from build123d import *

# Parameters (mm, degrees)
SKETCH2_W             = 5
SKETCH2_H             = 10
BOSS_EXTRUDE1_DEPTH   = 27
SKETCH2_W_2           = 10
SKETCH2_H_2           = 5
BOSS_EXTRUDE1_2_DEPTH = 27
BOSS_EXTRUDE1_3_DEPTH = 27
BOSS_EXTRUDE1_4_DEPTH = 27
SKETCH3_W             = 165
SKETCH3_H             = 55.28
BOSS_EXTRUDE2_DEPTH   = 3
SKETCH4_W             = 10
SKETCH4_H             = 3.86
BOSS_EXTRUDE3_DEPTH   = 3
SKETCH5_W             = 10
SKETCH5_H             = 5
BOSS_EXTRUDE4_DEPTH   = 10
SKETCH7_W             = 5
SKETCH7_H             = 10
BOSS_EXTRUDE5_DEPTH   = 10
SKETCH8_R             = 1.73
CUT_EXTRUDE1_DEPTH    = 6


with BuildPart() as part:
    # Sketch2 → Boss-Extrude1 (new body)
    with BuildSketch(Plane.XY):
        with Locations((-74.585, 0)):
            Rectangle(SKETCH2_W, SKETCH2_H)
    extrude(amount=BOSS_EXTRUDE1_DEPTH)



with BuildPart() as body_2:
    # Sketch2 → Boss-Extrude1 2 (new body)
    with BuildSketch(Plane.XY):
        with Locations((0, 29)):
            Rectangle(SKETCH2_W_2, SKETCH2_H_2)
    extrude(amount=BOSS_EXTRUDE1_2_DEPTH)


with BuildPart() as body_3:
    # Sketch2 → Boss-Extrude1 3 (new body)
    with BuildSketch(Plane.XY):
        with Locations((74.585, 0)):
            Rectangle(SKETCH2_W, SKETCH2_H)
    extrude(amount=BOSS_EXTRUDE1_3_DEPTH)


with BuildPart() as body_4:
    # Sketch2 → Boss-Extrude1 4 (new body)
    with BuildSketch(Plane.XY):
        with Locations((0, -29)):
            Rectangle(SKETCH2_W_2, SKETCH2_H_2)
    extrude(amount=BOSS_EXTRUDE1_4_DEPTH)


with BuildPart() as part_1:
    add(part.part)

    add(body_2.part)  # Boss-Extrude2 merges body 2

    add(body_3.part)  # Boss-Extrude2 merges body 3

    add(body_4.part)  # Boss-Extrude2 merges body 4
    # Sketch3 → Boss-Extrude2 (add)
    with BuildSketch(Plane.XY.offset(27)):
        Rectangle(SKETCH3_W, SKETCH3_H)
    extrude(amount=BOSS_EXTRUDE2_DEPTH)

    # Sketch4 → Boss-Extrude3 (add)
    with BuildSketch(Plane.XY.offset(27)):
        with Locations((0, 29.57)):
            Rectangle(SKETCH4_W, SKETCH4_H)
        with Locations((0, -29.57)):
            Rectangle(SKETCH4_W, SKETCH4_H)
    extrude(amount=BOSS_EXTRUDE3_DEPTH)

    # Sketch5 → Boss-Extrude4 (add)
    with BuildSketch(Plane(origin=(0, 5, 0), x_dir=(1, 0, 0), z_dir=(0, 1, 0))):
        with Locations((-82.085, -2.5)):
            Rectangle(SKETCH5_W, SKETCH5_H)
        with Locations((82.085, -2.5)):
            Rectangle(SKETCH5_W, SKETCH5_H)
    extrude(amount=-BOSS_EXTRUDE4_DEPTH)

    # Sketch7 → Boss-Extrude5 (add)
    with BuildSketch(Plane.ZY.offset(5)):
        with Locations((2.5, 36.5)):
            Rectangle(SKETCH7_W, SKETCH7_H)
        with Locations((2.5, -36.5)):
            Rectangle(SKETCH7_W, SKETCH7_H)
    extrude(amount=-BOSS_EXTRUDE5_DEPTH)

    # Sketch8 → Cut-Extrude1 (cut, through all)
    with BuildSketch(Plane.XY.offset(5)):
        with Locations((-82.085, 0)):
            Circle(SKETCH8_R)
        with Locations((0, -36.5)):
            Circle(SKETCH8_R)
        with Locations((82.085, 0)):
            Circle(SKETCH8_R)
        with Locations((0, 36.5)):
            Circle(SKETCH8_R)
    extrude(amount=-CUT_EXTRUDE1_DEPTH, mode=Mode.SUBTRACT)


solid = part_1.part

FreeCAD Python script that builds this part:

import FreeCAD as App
import Part
import Sketcher
from FreeCAD import Vector
Q = App.Units.Quantity


def add_polygon(sketch, points):
    """Adds a closed chain of lines whose ends are joined by coincident constraints."""
    first, n = sketch.GeometryCount, len(points)
    for a, b in zip(points, points[1:] + points[:1]):
        sketch.addGeometry(Part.LineSegment(App.Vector(*a, 0), App.Vector(*b, 0)), False)
    for i in range(n):
        sketch.addConstraint(Sketcher.Constraint("Coincident", first + i, 2, first + (i + 1) % n, 1))

doc = App.newDocument("Part")
params = doc.addObject("Spreadsheet::Sheet", "Params")
for row, (alias, value) in enumerate([
    ("sketch1_width", "5 mm"),
    ("sketch1_height", "10 mm"),
    ("pad1_length", "27 mm"),
    ("sketch2_width", "10 mm"),
    ("sketch2_height", "5 mm"),
    ("pad2_length", "27 mm"),
    ("sketch3_width", "5 mm"),
    ("sketch3_height", "10 mm"),
    ("pad3_length", "27 mm"),
    ("sketch4_width", "10 mm"),
    ("sketch4_height", "5 mm"),
    ("pad4_length", "27 mm"),
    ("sketch5_width", "165 mm"),
    ("sketch5_height", "55.28 mm"),
    ("pad5_length", "3 mm"),
    ("sketch6_width", "10 mm"),
    ("sketch6_height", "3.86 mm"),
    ("pad6_length", "3 mm"),
    ("sketch7_width", "10 mm"),
    ("sketch7_height", "5 mm"),
    ("pad7_length", "10 mm"),
    ("sketch8_width", "10 mm"),
    ("sketch8_height", "5 mm"),
    ("pad8_length", "10 mm"),
    ("sketch9_diameter", "3.46 mm"),
], start=1):
    params.set(f"A{row}", alias)
    params.set(f"B{row}", "=" + value)
    params.setAlias(f"B{row}", alias)

body = doc.addObject("PartDesign::Body", "Body")

# Sketch on XY plane
sketch1 = doc.addObject("Sketcher::SketchObject", "Sketch")
body.addObject(sketch1)
sketch1.AttachmentSupport = (doc.XY_Plane, [""])
sketch1.MapMode = "FlatFace"
add_polygon(sketch1, [(-77.085, 5), (-77.085, -5), (-72.085, -5), (-72.085, 5)])  # lines 0-3
sketch1.addConstraint([
    Sketcher.Constraint("Vertical", 0),
    Sketcher.Constraint("Horizontal", 1),
    Sketcher.Constraint("Vertical", 2),
    Sketcher.Constraint("Horizontal", 3),
    Sketcher.Constraint("DistanceX", 1, 1, 1, 2, Q("5 mm")),
    Sketcher.Constraint("DistanceY", 0, 2, 0, 1, Q("10 mm")),
    Sketcher.Constraint("DistanceY", 0, 2, -1, 1, Q("5 mm")),
    Sketcher.Constraint("DistanceX", 0, 2, -1, 1, Q("77.085 mm")),
])
sketch1.setExpression("Constraints[8]", "Params.sketch1_width")
sketch1.setExpression("Constraints[9]", "Params.sketch1_height")
pad1 = doc.addObject("PartDesign::Pad", "Pad")
body.addObject(pad1)
pad1.Profile = sketch1
pad1.setExpression("Length", "Params.pad1_length")
body2 = doc.addObject("PartDesign::Body", "Body001")

# Sketch on XY plane
sketch2 = doc.addObject("Sketcher::SketchObject", "Sketch001")
body2.addObject(sketch2)
sketch2.AttachmentSupport = (doc.getObject("XY_Plane001"), [""])
sketch2.MapMode = "FlatFace"
add_polygon(sketch2, [(-5, 31.5), (-5, 26.5), (5, 26.5), (5, 31.5)])  # lines 0-3
sketch2.addConstraint([
    Sketcher.Constraint("Vertical", 0),
    Sketcher.Constraint("Horizontal", 1),
    Sketcher.Constraint("Vertical", 2),
    Sketcher.Constraint("Horizontal", 3),
    Sketcher.Constraint("DistanceX", 1, 1, 1, 2, Q("10 mm")),
    Sketcher.Constraint("DistanceY", 0, 2, 0, 1, Q("5 mm")),
    Sketcher.Constraint("DistanceX", 0, 2, -1, 1, Q("5 mm")),
    Sketcher.Constraint("DistanceY", -1, 1, 0, 2, Q("26.5 mm")),
])
sketch2.setExpression("Constraints[8]", "Params.sketch2_width")
sketch2.setExpression("Constraints[9]", "Params.sketch2_height")
pad2 = doc.addObject("PartDesign::Pad", "Pad001")
body2.addObject(pad2)
pad2.Profile = sketch2
pad2.setExpression("Length", "Params.pad2_length")
body3 = doc.addObject("PartDesign::Body", "Body002")

# Sketch on XY plane
sketch3 = doc.addObject("Sketcher::SketchObject", "Sketch002")
body3.addObject(sketch3)
sketch3.AttachmentSupport = (doc.getObject("XY_Plane002"), [""])
sketch3.MapMode = "FlatFace"
add_polygon(sketch3, [(72.085, 5), (72.085, -5), (77.085, -5), (77.085, 5)])  # lines 0-3
sketch3.addConstraint([
    Sketcher.Constraint("Vertical", 0),
    Sketcher.Constraint("Horizontal", 1),
    Sketcher.Constraint("Vertical", 2),
    Sketcher.Constraint("Horizontal", 3),
    Sketcher.Constraint("DistanceX", 1, 1, 1, 2, Q("5 mm")),
    Sketcher.Constraint("DistanceY", 0, 2, 0, 1, Q("10 mm")),
    Sketcher.Constraint("DistanceY", 0, 2, -1, 1, Q("5 mm")),
    Sketcher.Constraint("DistanceX", -1, 1, 0, 2, Q("72.085 mm")),
])
sketch3.setExpression("Constraints[8]", "Params.sketch3_width")
sketch3.setExpression("Constraints[9]", "Params.sketch3_height")
pad3 = doc.addObject("PartDesign::Pad", "Pad002")
body3.addObject(pad3)
pad3.Profile = sketch3
pad3.setExpression("Length", "Params.pad3_length")
body4 = doc.addObject("PartDesign::Body", "Body003")

# Sketch on XY plane
sketch4 = doc.addObject("Sketcher::SketchObject", "Sketch003")
body4.addObject(sketch4)
sketch4.AttachmentSupport = (doc.getObject("XY_Plane003"), [""])
sketch4.MapMode = "FlatFace"
add_polygon(sketch4, [(-5, -26.5), (-5, -31.5), (5, -31.5), (5, -26.5)])  # lines 0-3
sketch4.addConstraint([
    Sketcher.Constraint("Vertical", 0),
    Sketcher.Constraint("Horizontal", 1),
    Sketcher.Constraint("Vertical", 2),
    Sketcher.Constraint("Horizontal", 3),
    Sketcher.Constraint("DistanceX", 1, 1, 1, 2, Q("10 mm")),
    Sketcher.Constraint("DistanceY", 0, 2, 0, 1, Q("5 mm")),
    Sketcher.Constraint("DistanceX", 0, 2, -1, 1, Q("5 mm")),
    Sketcher.Constraint("DistanceY", 0, 2, -1, 1, Q("31.5 mm")),
])
sketch4.setExpression("Constraints[8]", "Params.sketch4_width")
sketch4.setExpression("Constraints[9]", "Params.sketch4_height")
pad4 = doc.addObject("PartDesign::Pad", "Pad003")
body4.addObject(pad4)
pad4.Profile = sketch4
pad4.setExpression("Length", "Params.pad4_length")
body.AllowCompound = True
doc.recompute()

boolean = doc.addObject("PartDesign::Boolean", "Boolean")
body.addObject(boolean)
boolean.Type = "Fuse"
boolean.addObjects([body2])
doc.recompute()

boolean2 = doc.addObject("PartDesign::Boolean", "Boolean001")
body.addObject(boolean2)
boolean2.Type = "Fuse"
boolean2.addObjects([body3])
doc.recompute()

boolean3 = doc.addObject("PartDesign::Boolean", "Boolean002")
body.addObject(boolean3)
boolean3.Type = "Fuse"
boolean3.addObjects([body4])

# Sketch on XY plane
sketch5 = doc.addObject("Sketcher::SketchObject", "Sketch004")
body.addObject(sketch5)
sketch5.AttachmentSupport = (doc.XY_Plane, [""])
sketch5.MapMode = "FlatFace"
sketch5.AttachmentOffset = App.Placement(Vector(0, 0, 27), App.Rotation())
add_polygon(sketch5, [(-82.5, 27.64), (-82.5, -27.64), (82.5, -27.64), (82.5, 27.64)])  # lines 0-3
sketch5.addConstraint([
    Sketcher.Constraint("Vertical", 0),
    Sketcher.Constraint("Horizontal", 1),
    Sketcher.Constraint("Vertical", 2),
    Sketcher.Constraint("Horizontal", 3),
    Sketcher.Constraint("Symmetric", 0, 2, 2, 2, -1, 1),
    Sketcher.Constraint("DistanceX", 1, 1, 1, 2, Q("165 mm")),
    Sketcher.Constraint("DistanceY", 0, 2, 0, 1, Q("55.28 mm")),
])
sketch5.setExpression("Constraints[9]", "Params.sketch5_width")
sketch5.setExpression("Constraints[10]", "Params.sketch5_height")
pad5 = doc.addObject("PartDesign::Pad", "Pad004")
body.addObject(pad5)
pad5.Profile = sketch5
pad5.setExpression("Length", "Params.pad5_length")

# Sketch on XY plane
sketch6 = doc.addObject("Sketcher::SketchObject", "Sketch005")
body.addObject(sketch6)
sketch6.AttachmentSupport = (doc.XY_Plane, [""])
sketch6.MapMode = "FlatFace"
sketch6.AttachmentOffset = App.Placement(Vector(0, 0, 27), App.Rotation())
add_polygon(sketch6, [(-5, 31.5), (-5, 27.64), (5, 27.64), (5, 31.5)])  # lines 0-3
add_polygon(sketch6, [(-5, -27.64), (-5, -31.5), (5, -31.5), (5, -27.64)])  # lines 4-7
sketch6.addConstraint([
    Sketcher.Constraint("Vertical", 0),
    Sketcher.Constraint("Horizontal", 1),
    Sketcher.Constraint("Vertical", 2),
    Sketcher.Constraint("Horizontal", 3),
    Sketcher.Constraint("Vertical", 4),
    Sketcher.Constraint("Horizontal", 5),
    Sketcher.Constraint("Vertical", 6),
    Sketcher.Constraint("Horizontal", 7),
    Sketcher.Constraint("Symmetric", 2, 2, 4, 2, -1, 1),
    Sketcher.Constraint("Symmetric", 0, 2, 6, 2, -1, 1),
    Sketcher.Constraint("Vertical", 3, 2, 4, 2),
    Sketcher.Constraint("DistanceX", 1, 1, 1, 2, Q("10 mm")),
    Sketcher.Constraint("DistanceY", 4, 2, 3, 2, Q("63 mm")),
    Sketcher.Constraint("DistanceY", 0, 2, 0, 1, Q("3.86 mm")),
])
sketch6.setExpression("Constraints[19]", "Params.sketch6_width")
sketch6.setExpression("Constraints[21]", "Params.sketch6_height")
pad6 = doc.addObject("PartDesign::Pad", "Pad005")
body.addObject(pad6)
pad6.Profile = sketch6
pad6.setExpression("Length", "Params.pad6_length")

# Sketch on XZ plane
sketch7 = doc.addObject("Sketcher::SketchObject", "Sketch006")
body.addObject(sketch7)
sketch7.AttachmentSupport = (doc.XZ_Plane, [""])
sketch7.MapMode = "FlatFace"
sketch7.AttachmentOffset = App.Placement(Vector(0, 0, -5), App.Rotation())
add_polygon(sketch7, [(-87.085, 0), (-87.085, 5), (-77.085, 5), (-77.085, 0)])  # lines 0-3
add_polygon(sketch7, [(77.085, 0), (77.085, 5), (87.085, 5), (87.085, 0)])  # lines 4-7
sketch7.addConstraint([
    Sketcher.Constraint("Vertical", 0),
    Sketcher.Constraint("Horizontal", 1),
    Sketcher.Constraint("Vertical", 2),
    Sketcher.Constraint("Horizontal", 3),
    Sketcher.Constraint("Vertical", 4),
    Sketcher.Constraint("Horizontal", 5),
    Sketcher.Constraint("Vertical", 6),
    Sketcher.Constraint("Horizontal", 7),
    Sketcher.Constraint("Symmetric", 3, 2, 6, 2, -1, 1),
    Sketcher.Constraint("Symmetric", 1, 2, 4, 2, -2),
    Sketcher.Constraint("PointOnObject", 2, 2, -1),
    Sketcher.Constraint("DistanceX", 1, 1, 1, 2, Q("10 mm")),
    Sketcher.Constraint("DistanceY", 0, 1, 0, 2, Q("5 mm")),
    Sketcher.Constraint("DistanceX", 1, 2, 4, 2, Q("154.17 mm")),
])
sketch7.setExpression("Constraints[19]", "Params.sketch7_width")
sketch7.setExpression("Constraints[20]", "Params.sketch7_height")
pad7 = doc.addObject("PartDesign::Pad", "Pad006")
body.addObject(pad7)
pad7.Profile = sketch7
pad7.setExpression("Length", "Params.pad7_length")

# Sketch on YZ plane
sketch8 = doc.addObject("Sketcher::SketchObject", "Sketch007")
body.addObject(sketch8)
sketch8.AttachmentSupport = (doc.YZ_Plane, [""])
sketch8.MapMode = "FlatFace"
sketch8.AttachmentOffset = App.Placement(Vector(0, 0, -5), App.Rotation())
add_polygon(sketch8, [(41.5, 0), (31.5, 0), (31.5, 5), (41.5, 5)])  # lines 0-3
add_polygon(sketch8, [(-31.5, 0), (-41.5, 0), (-41.5, 5), (-31.5, 5)])  # lines 4-7
sketch8.addConstraint([
    Sketcher.Constraint("Horizontal", 0),
    Sketcher.Constraint("Vertical", 1),
    Sketcher.Constraint("Horizontal", 2),
    Sketcher.Constraint("Vertical", 3),
    Sketcher.Constraint("Horizontal", 4),
    Sketcher.Constraint("Vertical", 5),
    Sketcher.Constraint("Horizontal", 6),
    Sketcher.Constraint("Vertical", 7),
    Sketcher.Constraint("Symmetric", 3, 2, 4, 2, -1, 1),
    Sketcher.Constraint("Symmetric", 1, 2, 6, 2, -2),
    Sketcher.Constraint("PointOnObject", 0, 2, -1),
    Sketcher.Constraint("DistanceX", 0, 2, 0, 1, Q("10 mm")),
    Sketcher.Constraint("DistanceY", 1, 1, 1, 2, Q("5 mm")),
    Sketcher.Constraint("DistanceX", 4, 2, 0, 2, Q("73 mm")),
])
sketch8.setExpression("Constraints[19]", "Params.sketch8_width")
sketch8.setExpression("Constraints[20]", "Params.sketch8_height")
pad8 = doc.addObject("PartDesign::Pad", "Pad007")
body.addObject(pad8)
pad8.Profile = sketch8
pad8.setExpression("Length", "Params.pad8_length")

# Sketch on XY plane
sketch9 = doc.addObject("Sketcher::SketchObject", "Sketch008")
body.addObject(sketch9)
sketch9.AttachmentSupport = (doc.XY_Plane, [""])
sketch9.MapMode = "FlatFace"
sketch9.AttachmentOffset = App.Placement(Vector(0, 0, 5), App.Rotation())
sketch9.addGeometry([
    Part.Circle(Vector(-82.085, 0, 0), Vector(0, 0, 1), 1.73),
    Part.Circle(Vector(0, -36.5, 0), Vector(0, 0, 1), 1.73),
    Part.Circle(Vector(82.085, 0, 0), Vector(0, 0, 1), 1.73),
    Part.Circle(Vector(0, 36.5, 0), Vector(0, 0, 1), 1.73),
], False)
sketch9.addConstraint([
    Sketcher.Constraint("Equal", 0, 1),
    Sketcher.Constraint("Equal", 1, 2),
    Sketcher.Constraint("Equal", 2, 3),
    Sketcher.Constraint("Symmetric", 0, 3, 2, 3, -1, 1),
    Sketcher.Constraint("Symmetric", 1, 3, 3, 3, -1, 1),
    Sketcher.Constraint("PointOnObject", 0, 3, -1),
    Sketcher.Constraint("PointOnObject", 1, 3, -2),
    Sketcher.Constraint("Diameter", 0, Q("3.46 mm")),
    Sketcher.Constraint("DistanceY", 1, 3, 3, 3, Q("73 mm")),
    Sketcher.Constraint("DistanceX", 0, 3, 2, 3, Q("164.17 mm")),
])
sketch9.setExpression("Constraints[7]", "Params.sketch9_diameter")
pocket1 = doc.addObject("PartDesign::Pocket", "Pocket")
body.addObject(pocket1)
pocket1.Profile = sketch9
pocket1.Type = "ThroughAll"

doc.recompute()
